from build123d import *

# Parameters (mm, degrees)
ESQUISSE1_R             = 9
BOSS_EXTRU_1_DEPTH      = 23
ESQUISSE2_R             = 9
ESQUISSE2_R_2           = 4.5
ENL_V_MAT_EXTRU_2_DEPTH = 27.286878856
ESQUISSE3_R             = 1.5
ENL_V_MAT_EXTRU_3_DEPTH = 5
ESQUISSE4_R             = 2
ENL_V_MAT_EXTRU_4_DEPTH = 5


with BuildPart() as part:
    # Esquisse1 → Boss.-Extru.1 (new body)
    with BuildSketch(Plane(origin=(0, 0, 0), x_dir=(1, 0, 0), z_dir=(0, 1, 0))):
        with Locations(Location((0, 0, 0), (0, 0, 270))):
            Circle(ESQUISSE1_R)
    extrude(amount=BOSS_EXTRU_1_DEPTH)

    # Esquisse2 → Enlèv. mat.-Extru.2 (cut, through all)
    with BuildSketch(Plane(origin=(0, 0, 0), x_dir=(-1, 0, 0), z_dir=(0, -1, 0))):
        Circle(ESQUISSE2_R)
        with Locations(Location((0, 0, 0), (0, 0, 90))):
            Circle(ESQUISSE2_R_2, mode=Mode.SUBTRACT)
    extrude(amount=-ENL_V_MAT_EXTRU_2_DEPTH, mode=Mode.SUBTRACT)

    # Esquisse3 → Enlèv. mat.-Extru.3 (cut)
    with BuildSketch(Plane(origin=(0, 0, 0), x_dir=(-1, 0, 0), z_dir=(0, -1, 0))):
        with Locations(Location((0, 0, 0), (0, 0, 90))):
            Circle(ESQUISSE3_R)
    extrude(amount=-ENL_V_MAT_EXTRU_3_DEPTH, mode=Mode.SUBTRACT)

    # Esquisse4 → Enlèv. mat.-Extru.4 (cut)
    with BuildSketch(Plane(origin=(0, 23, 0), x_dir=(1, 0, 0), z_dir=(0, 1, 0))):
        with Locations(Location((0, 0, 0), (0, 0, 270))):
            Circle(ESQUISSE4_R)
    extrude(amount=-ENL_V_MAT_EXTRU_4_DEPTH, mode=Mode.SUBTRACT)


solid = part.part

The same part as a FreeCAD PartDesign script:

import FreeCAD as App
import Part
import Sketcher
from FreeCAD import Vector
Q = App.Units.Quantity

doc = App.newDocument("Part")
params = doc.addObject("Spreadsheet::Sheet", "Params")
for row, (alias, value) in enumerate([
    ("sketch1_diameter", "18 mm"),
    ("pad1_length", "23 mm"),
    ("sketch2_diameter", "18 mm"),
    ("sketch2_diameter2", "9 mm"),
    ("sketch3_diameter", "3 mm"),
    ("pocket2_length", "5 mm"),
    ("sketch4_diameter", "4 mm"),
    ("pocket3_length", "5 mm"),
], start=1):
    params.set(f"A{row}", alias)
    params.set(f"B{row}", "=" + value)
    params.setAlias(f"B{row}", alias)

body = doc.addObject("PartDesign::Body", "Body")

# Sketch on XZ plane
sketch1 = body.newObject("Sketcher::SketchObject", "Sketch")
sketch1.AttachmentSupport = (doc.getObject("XZ_Plane"), [""])
sketch1.MapMode = "FlatFace"
sketch1.addGeometry(Part.Circle(Vector(0, 0, 0), Vector(0, 0, 1), 9), False)
sketch1.addConstraint([
    Sketcher.Constraint("Coincident", 0, 3, -1, 1),
    Sketcher.Constraint("Diameter", 0, Q("18 mm")),
])
sketch1.setExpression("Constraints[1]", "Params.sketch1_diameter")
pad1 = body.newObject("PartDesign::Pad", "Pad")
pad1.Profile = sketch1
pad1.setExpression("Length", "Params.pad1_length")
pad1.Reversed = True

# Sketch on XZ plane
sketch2 = body.newObject("Sketcher::SketchObject", "Sketch001")
sketch2.AttachmentSupport = (doc.getObject("XZ_Plane"), [""])
sketch2.MapMode = "FlatFace"
sketch2.addGeometry([
    Part.Circle(Vector(0, 0, 0), Vector(0, 0, 1), 9),
    Part.Circle(Vector(0, 0, 0), Vector(0, 0, 1), 4.5),
], False)
sketch2.addConstraint([
    Sketcher.Constraint("Coincident", 0, 3, -1, 1),
    Sketcher.Constraint("Coincident", 1, 3, -1, 1),
    Sketcher.Constraint("Diameter", 0, Q("18 mm")),
    Sketcher.Constraint("Diameter", 1, Q("9 mm")),
])
sketch2.setExpression("Constraints[2]", "Params.sketch2_diameter")
sketch2.setExpression("Constraints[3]", "Params.sketch2_diameter2")
pocket1 = body.newObject("PartDesign::Pocket", "Pocket")
pocket1.Profile = sketch2
pocket1.Type = "ThroughAll"

# Sketch on XZ plane
sketch3 = body.newObject("Sketcher::SketchObject", "Sketch002")
sketch3.AttachmentSupport = (doc.getObject("XZ_Plane"), [""])
sketch3.MapMode = "FlatFace"
sketch3.addGeometry(Part.Circle(Vector(0, 0, 0), Vector(0, 0, 1), 1.5), False)
sketch3.addConstraint([
    Sketcher.Constraint("Coincident", 0, 3, -1, 1),
    Sketcher.Constraint("Diameter", 0, Q("3 mm")),
])
sketch3.setExpression("Constraints[1]", "Params.sketch3_diameter")
pocket2 = body.newObject("PartDesign::Pocket", "Pocket001")
pocket2.Profile = sketch3
pocket2.setExpression("Length", "Params.pocket2_length")

# Sketch on XZ plane
sketch4 = body.newObject("Sketcher::SketchObject", "Sketch003")
sketch4.AttachmentSupport = (doc.getObject("XZ_Plane"), [""])
sketch4.MapMode = "FlatFace"
sketch4.AttachmentOffset = App.Placement(Vector(0, 0, -23), App.Rotation())
sketch4.addGeometry(Part.Circle(Vector(0, 0, 0), Vector(0, 0, 1), 2), False)
sketch4.addConstraint([
    Sketcher.Constraint("Coincident", 0, 3, -1, 1),
    Sketcher.Constraint("Diameter", 0, Q("4 mm")),
])
sketch4.setExpression("Constraints[1]", "Params.sketch4_diameter")
pocket3 = body.newObject("PartDesign::Pocket", "Pocket002")
pocket3.Profile = sketch4
pocket3.setExpression("Length", "Params.pocket3_length")
pocket3.Reversed = True

doc.recompute()
